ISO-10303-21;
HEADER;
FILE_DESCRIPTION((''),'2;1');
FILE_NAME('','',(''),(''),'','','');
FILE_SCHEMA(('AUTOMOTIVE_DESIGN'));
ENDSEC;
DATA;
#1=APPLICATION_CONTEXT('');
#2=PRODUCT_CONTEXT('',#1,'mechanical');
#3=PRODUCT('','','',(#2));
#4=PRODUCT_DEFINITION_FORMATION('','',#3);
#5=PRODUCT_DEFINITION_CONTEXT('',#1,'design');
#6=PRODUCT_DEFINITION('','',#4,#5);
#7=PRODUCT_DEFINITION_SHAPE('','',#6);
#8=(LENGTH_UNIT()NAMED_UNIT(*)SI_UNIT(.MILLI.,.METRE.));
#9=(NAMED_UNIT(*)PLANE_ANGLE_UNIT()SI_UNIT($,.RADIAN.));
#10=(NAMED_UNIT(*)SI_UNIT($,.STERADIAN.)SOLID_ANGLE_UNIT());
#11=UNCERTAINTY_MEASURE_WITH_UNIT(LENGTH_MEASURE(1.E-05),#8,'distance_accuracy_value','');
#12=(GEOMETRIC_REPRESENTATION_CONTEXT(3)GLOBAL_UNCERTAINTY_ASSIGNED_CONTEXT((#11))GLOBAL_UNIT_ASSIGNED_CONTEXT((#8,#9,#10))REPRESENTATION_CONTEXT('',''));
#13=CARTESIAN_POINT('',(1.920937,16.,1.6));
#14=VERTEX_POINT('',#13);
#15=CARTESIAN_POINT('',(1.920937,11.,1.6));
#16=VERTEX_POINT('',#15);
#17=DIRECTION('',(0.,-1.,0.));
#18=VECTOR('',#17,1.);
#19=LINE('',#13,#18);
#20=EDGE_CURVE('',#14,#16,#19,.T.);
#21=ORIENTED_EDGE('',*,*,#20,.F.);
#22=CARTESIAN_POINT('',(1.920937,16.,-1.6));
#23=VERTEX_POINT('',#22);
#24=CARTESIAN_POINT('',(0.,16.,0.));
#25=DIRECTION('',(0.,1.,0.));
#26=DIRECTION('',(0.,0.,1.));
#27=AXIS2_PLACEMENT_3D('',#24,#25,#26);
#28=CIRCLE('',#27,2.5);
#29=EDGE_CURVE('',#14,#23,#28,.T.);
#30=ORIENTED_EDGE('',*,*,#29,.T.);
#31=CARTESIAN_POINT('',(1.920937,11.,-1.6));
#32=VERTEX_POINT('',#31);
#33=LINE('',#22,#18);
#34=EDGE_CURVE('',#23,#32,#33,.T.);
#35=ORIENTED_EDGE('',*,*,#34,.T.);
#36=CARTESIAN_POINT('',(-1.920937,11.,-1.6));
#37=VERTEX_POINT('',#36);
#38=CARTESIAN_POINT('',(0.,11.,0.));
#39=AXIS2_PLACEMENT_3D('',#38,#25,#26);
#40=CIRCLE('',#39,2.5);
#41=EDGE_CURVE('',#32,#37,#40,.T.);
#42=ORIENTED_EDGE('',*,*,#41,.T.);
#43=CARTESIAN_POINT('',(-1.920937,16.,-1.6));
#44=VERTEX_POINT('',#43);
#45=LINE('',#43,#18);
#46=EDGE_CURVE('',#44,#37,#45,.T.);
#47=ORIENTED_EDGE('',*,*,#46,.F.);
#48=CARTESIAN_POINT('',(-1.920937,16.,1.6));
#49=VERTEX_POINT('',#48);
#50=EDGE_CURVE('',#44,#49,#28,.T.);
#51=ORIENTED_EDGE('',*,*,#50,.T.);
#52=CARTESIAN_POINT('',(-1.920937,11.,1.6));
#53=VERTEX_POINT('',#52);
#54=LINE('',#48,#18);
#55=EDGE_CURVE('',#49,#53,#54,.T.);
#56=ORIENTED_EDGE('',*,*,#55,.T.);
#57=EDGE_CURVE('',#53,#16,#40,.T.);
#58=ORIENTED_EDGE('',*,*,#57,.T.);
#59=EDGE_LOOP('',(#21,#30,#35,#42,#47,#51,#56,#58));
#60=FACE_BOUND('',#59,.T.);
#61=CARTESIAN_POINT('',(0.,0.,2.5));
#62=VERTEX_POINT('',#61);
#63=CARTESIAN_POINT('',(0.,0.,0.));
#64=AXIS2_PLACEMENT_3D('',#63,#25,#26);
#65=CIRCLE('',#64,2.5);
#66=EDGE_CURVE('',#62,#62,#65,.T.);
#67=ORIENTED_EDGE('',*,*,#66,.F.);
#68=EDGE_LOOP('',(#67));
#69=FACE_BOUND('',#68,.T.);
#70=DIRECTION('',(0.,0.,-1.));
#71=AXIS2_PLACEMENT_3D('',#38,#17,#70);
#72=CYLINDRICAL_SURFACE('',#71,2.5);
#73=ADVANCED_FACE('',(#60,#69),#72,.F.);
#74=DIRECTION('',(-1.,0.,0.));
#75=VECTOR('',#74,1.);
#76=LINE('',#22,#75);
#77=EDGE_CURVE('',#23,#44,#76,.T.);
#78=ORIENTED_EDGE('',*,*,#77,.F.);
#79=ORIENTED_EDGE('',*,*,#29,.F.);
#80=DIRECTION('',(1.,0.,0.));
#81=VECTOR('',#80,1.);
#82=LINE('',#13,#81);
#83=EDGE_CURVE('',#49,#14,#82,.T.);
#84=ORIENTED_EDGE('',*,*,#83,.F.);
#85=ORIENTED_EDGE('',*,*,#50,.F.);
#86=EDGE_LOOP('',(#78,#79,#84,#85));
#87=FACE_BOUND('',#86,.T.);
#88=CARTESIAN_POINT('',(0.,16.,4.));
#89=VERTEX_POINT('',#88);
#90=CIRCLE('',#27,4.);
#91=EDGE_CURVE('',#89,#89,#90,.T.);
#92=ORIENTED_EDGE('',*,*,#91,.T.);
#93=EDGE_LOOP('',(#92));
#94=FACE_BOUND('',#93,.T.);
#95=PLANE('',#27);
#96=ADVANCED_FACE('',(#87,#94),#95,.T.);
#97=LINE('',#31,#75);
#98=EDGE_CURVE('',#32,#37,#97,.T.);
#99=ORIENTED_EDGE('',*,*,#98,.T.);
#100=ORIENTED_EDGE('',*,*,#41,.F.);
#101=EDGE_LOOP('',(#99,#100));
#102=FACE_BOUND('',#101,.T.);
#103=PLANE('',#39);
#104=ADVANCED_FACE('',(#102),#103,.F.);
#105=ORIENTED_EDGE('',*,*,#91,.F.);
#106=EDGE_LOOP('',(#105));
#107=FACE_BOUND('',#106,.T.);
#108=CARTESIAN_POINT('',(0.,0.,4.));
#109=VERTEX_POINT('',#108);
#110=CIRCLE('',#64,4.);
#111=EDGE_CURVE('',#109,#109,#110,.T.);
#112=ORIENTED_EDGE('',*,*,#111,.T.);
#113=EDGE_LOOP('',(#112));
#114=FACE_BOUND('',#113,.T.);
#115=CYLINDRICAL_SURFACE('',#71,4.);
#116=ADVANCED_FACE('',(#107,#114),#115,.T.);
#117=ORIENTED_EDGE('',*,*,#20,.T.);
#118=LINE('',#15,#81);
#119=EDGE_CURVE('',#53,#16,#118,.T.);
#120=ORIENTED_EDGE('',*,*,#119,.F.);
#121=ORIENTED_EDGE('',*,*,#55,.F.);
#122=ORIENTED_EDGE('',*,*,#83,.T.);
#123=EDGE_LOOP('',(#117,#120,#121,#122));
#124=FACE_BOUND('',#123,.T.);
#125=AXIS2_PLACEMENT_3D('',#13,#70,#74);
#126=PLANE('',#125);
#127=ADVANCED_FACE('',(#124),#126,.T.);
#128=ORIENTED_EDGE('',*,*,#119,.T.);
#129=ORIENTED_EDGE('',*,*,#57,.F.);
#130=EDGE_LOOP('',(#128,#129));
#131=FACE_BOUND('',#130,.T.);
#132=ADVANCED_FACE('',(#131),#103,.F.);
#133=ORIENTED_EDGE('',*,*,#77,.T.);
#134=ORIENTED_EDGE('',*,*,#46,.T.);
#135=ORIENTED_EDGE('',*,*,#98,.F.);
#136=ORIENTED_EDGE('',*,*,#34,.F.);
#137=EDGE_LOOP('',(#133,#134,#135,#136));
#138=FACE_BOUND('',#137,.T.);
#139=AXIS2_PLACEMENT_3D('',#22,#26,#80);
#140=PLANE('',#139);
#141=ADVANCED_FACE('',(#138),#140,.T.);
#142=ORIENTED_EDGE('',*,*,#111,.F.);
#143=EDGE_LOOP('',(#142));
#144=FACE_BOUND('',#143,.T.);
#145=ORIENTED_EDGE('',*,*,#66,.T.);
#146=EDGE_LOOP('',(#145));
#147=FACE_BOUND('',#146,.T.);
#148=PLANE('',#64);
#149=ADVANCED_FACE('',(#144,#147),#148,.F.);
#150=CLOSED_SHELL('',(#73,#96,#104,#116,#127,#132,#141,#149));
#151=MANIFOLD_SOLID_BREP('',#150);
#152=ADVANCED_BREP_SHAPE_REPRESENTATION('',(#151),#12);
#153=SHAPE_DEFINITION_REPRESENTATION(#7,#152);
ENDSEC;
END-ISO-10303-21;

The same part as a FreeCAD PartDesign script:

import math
import FreeCAD as App
import Part
import Sketcher
Q = App.Units.Quantity

doc = App.newDocument("Part")
body = doc.addObject("PartDesign::Body", "Body")

sketch1 = body.newObject("Sketcher::SketchObject", "Sketch")
sketch1.AttachmentSupport = (doc.getObject("XZ_Plane"), [""])
sketch1.MapMode = "FlatFace"
sketch1.addGeometry([
    Part.Circle(App.Vector(0, 0, 0), App.Vector(0, 0, 1), 4),
    Part.Circle(App.Vector(0, 0, 0), App.Vector(0, 0, 1), 2.5),
], False)
sketch1.addConstraint([
    Sketcher.Constraint("Coincident", 0, 3, -1, 1),
    Sketcher.Constraint("Coincident", 1, 3, -1, 1),
    Sketcher.Constraint("Diameter", 0, Q("8 mm")),
    Sketcher.Constraint("Diameter", 1, Q("5 mm")),
])
pad1 = body.newObject("PartDesign::Pad", "Pad")
pad1.Profile = sketch1
pad1.Length = 11
pad1.Reversed = True

sketch2 = body.newObject("Sketcher::SketchObject", "Sketch001")
sketch2.AttachmentSupport = (doc.getObject("XZ_Plane"), [""])
sketch2.MapMode = "FlatFace"
sketch2.AttachmentOffset = App.Placement(App.Vector(0, 0, -11), App.Rotation())
sketch2.addGeometry([
    Part.Circle(App.Vector(0, 0, 0), App.Vector(0, 0, 1), 4),
    Part.LineSegment(App.Vector(-1.9, -1.6, 0), App.Vector(1.9, -1.6, 0)),
    Part.ArcOfCircle(Part.Circle(App.Vector(0, 0, 0), App.Vector(0, 0, 1), 2.5), math.radians(-40), math.radians(40)),
    Part.LineSegment(App.Vector(1.9, 1.6, 0), App.Vector(-1.9, 1.6, 0)),
    Part.ArcOfCircle(Part.Circle(App.Vector(0, 0, 0), App.Vector(0, 0, 1), 2.5), math.radians(140), math.radians(220)),
], False)
sketch2.addConstraint([
    Sketcher.Constraint("Coincident", 1, 2, 2, 1),
    Sketcher.Constraint("Coincident", 2, 2, 3, 1),
    Sketcher.Constraint("Coincident", 3, 2, 4, 1),
    Sketcher.Constraint("Coincident", 4, 2, 1, 1),
    Sketcher.Constraint("Horizontal", 1),
    Sketcher.Constraint("Horizontal", 3),
    Sketcher.Constraint("Coincident", 0, 3, -1, 1),
    Sketcher.Constraint("Coincident", 2, 3, -1, 1),
    Sketcher.Constraint("Coincident", 4, 3, -1, 1),
    Sketcher.Constraint("Equal", 2, 4),
    Sketcher.Constraint("Vertical", 1, 2, 2, 2),
    Sketcher.Constraint("Diameter", 0, Q("8 mm")),
    Sketcher.Constraint("Radius", 2, Q("2.5 mm")),
    Sketcher.Constraint("DistanceY", 1, 2, -1, 1, Q("1.6 mm")),
])
pad2 = body.newObject("PartDesign::Pad", "Pad001")
pad2.Profile = sketch2
pad2.Length = 5
pad2.Reversed = True

doc.recompute()
